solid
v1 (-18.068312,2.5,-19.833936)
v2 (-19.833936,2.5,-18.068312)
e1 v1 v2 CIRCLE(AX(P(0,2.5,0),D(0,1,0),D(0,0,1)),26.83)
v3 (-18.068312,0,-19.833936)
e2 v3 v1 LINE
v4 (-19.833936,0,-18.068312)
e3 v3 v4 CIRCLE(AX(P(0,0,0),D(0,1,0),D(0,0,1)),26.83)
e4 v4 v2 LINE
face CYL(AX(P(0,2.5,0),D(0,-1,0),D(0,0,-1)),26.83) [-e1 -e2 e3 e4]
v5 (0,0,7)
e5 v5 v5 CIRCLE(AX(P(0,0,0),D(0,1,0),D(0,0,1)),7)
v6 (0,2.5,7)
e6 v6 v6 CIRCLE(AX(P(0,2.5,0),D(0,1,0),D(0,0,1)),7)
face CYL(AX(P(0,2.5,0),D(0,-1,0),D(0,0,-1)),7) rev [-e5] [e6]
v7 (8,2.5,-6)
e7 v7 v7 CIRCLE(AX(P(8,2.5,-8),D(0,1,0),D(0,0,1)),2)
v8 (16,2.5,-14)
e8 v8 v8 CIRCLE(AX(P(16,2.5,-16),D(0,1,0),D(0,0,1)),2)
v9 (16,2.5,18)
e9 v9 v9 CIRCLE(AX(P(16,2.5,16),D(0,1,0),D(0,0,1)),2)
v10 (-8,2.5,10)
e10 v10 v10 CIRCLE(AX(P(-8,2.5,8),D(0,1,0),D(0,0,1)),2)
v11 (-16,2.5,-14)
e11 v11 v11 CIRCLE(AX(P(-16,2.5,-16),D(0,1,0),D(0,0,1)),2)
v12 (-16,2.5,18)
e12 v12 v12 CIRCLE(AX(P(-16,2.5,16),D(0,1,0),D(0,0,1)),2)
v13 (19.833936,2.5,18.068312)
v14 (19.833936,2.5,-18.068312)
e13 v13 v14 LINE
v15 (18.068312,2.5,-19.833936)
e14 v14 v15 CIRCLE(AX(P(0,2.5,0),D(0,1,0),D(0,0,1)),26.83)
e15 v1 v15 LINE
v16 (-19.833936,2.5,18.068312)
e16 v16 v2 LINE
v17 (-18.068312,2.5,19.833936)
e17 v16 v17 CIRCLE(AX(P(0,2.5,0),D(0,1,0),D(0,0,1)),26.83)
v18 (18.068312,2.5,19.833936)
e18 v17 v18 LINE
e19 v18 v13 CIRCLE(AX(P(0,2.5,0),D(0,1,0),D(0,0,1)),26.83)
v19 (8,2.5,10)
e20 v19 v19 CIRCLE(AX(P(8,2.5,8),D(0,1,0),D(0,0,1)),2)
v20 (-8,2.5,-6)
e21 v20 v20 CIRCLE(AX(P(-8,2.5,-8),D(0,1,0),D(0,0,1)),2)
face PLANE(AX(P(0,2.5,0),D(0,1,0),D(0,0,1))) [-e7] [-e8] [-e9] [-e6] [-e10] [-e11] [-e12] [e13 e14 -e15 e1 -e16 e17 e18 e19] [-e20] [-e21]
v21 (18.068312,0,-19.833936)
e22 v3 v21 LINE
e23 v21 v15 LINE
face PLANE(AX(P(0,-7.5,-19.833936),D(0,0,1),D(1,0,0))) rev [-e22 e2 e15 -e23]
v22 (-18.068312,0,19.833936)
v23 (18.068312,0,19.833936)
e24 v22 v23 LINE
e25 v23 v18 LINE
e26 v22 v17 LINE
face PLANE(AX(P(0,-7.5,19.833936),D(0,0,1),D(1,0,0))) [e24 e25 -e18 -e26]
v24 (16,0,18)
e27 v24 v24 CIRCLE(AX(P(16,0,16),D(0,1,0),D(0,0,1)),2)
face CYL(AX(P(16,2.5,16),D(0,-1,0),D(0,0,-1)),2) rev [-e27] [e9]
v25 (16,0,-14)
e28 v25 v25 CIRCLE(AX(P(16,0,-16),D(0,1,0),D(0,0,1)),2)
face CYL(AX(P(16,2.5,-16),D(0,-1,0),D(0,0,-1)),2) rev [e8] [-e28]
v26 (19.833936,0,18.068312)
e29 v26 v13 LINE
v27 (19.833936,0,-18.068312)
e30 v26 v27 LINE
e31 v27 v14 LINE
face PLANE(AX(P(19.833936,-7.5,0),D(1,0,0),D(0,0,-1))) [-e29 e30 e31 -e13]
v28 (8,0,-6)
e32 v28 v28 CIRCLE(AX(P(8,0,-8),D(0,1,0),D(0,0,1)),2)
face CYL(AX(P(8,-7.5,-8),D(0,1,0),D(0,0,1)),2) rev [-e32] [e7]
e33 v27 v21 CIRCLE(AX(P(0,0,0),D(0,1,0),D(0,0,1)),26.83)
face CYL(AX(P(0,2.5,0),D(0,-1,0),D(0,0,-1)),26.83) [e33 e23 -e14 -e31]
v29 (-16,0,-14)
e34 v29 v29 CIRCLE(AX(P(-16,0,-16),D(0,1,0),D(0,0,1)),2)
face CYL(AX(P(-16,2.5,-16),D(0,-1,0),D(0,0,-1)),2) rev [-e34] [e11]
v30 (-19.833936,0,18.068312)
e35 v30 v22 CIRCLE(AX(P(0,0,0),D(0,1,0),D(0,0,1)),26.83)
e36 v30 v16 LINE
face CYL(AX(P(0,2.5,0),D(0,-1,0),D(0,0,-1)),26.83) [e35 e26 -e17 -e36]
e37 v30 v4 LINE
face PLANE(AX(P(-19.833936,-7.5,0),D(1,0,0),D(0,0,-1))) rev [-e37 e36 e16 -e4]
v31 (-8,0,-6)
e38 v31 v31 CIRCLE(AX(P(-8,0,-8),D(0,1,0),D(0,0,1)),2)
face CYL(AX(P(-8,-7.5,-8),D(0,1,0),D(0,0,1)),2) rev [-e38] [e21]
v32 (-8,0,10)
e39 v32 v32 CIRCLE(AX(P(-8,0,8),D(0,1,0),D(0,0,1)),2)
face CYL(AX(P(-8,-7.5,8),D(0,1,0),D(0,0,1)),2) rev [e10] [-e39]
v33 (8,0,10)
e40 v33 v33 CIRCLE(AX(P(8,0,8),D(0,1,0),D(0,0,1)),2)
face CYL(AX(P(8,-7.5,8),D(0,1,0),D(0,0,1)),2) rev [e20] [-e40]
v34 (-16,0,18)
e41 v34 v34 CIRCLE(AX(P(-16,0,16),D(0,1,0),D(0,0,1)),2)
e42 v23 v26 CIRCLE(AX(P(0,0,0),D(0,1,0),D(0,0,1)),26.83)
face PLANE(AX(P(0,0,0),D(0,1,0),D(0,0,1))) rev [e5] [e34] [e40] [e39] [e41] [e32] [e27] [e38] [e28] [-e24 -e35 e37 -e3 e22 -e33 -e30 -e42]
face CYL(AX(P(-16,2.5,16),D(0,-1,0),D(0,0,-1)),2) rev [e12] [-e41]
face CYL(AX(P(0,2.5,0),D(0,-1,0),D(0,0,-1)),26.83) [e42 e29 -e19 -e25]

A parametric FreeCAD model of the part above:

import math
import FreeCAD as App
import Part
import Sketcher

doc = App.newDocument("Part")
body = doc.addObject("PartDesign::Body", "Body")

# Sketch on XZ plane
sketch1 = body.newObject("Sketcher::SketchObject", "Sketch")
sketch1.AttachmentSupport = (doc.getObject("XZ_Plane"), [""])
sketch1.MapMode = "FlatFace"
sketch1.addGeometry([
    Part.Circle(App.Vector(0, 0, 0), App.Vector(0, 0, 1), 26.8),  # 0
    Part.Circle(App.Vector(-16, 16, 0), App.Vector(0, 0, 1), 2),  # 1
    Part.Circle(App.Vector(16, 16, 0), App.Vector(0, 0, 1), 2),  # 2
    Part.Circle(App.Vector(0, 0, 0), App.Vector(0, 0, 1), 7),  # 3
    Part.Circle(App.Vector(-16, -16, 0), App.Vector(0, 0, 1), 2),  # 4
    Part.Circle(App.Vector(16, -16, 0), App.Vector(0, 0, 1), 2),  # 5
], False)
sketch1.addConstraint([
    Sketcher.Constraint("Coincident", 0, 3, -1, 1),
    Sketcher.Constraint("Coincident", 3, 3, -1, 1),
    Sketcher.Constraint("Equal", 1, 2),
    Sketcher.Constraint("Equal", 2, 4),
    Sketcher.Constraint("Equal", 4, 5),
    Sketcher.Constraint("Symmetric", 2, 3, 4, 3, -1, 1),
    Sketcher.Constraint("Symmetric", 1, 3, 5, 3, -1, 1),
    Sketcher.Constraint("Symmetric", 1, 3, 2, 3, -2),
    Sketcher.Constraint("Diameter", 1, 4.0),
    Sketcher.Constraint("Diameter", 3, 14.0),
    Sketcher.Constraint("Diameter", 0, 53.66),
    Sketcher.Constraint("DistanceX", 1, 3, -1, 1, 16.0),
    Sketcher.Constraint("DistanceY", -1, 1, 1, 3, 16.0),
])
pad1 = body.newObject("PartDesign::Pad", "Pad")
pad1.Profile = sketch1
pad1.Length = 2.5
pad1.Reversed = True

# Sketch on XZ plane
sketch2 = body.newObject("Sketcher::SketchObject", "Sketch001")
sketch2.AttachmentSupport = (doc.getObject("XZ_Plane"), [""])
sketch2.MapMode = "FlatFace"
sketch2.AttachmentOffset = App.Placement(App.Vector(0, 0, -2.5), App.Rotation())
sketch2.addGeometry([
    Part.ArcOfCircle(Part.Circle(App.Vector(-8, -8, 0), App.Vector(0, 0, 1), 2), math.radians(90), math.radians(360)),  # 0
    Part.ArcOfCircle(Part.Circle(App.Vector(-8, -8, 0), App.Vector(0, 0, 1), 2), math.radians(0), math.radians(90)),  # 1
    Part.ArcOfCircle(Part.Circle(App.Vector(8, -8, 0), App.Vector(0, 0, 1), 2), math.radians(90), math.radians(180)),  # 2
    Part.ArcOfCircle(Part.Circle(App.Vector(8, -8, 0), App.Vector(0, 0, 1), 2), math.radians(0), math.radians(90)),  # 3
    Part.ArcOfCircle(Part.Circle(App.Vector(8, -8, 0), App.Vector(0, 0, 1), 2), math.radians(180), math.radians(360)),  # 4
    Part.ArcOfCircle(Part.Circle(App.Vector(-8, 8, 0), App.Vector(0, 0, 1), 2), math.radians(0), math.radians(270)),  # 5
    Part.ArcOfCircle(Part.Circle(App.Vector(-8, 8, 0), App.Vector(0, 0, 1), 2), math.radians(-45), math.radians(0)),  # 6
    Part.ArcOfCircle(Part.Circle(App.Vector(-8, 8, 0), App.Vector(0, 0, 1), 2), math.radians(-90), math.radians(-45)),  # 7
    Part.ArcOfCircle(Part.Circle(App.Vector(8, 8, 0), App.Vector(0, 0, 1), 2), math.radians(180), math.radians(270)),  # 8
    Part.ArcOfCircle(Part.Circle(App.Vector(8, 8, 0), App.Vector(0, 0, 1), 2), math.radians(0), math.radians(180)),  # 9
    Part.ArcOfCircle(Part.Circle(App.Vector(8, 8, 0), App.Vector(0, 0, 1), 2), math.radians(-90), math.radians(0)),  # 10
], False)
sketch2.addConstraint([
    Sketcher.Constraint("Tangent", 0, 1, 1, 2),
    Sketcher.Constraint("Coincident", 1, 1, 0, 2),
    Sketcher.Constraint("Tangent", 2, 1, 3, 2),
    Sketcher.Constraint("Tangent", 3, 1, 4, 2),
    Sketcher.Constraint("Tangent", 4, 1, 2, 2),
    Sketcher.Constraint("Tangent", 5, 1, 6, 2),
    Sketcher.Constraint("Tangent", 6, 1, 7, 2),
    Sketcher.Constraint("Tangent", 7, 1, 5, 2),
    Sketcher.Constraint("Tangent", 8, 1, 9, 2),
    Sketcher.Constraint("Tangent", 9, 1, 10, 2),
    Sketcher.Constraint("Tangent", 10, 1, 8, 2),
    Sketcher.Constraint("Equal", 1, 2),
    Sketcher.Constraint("Equal", 4, 5),
    Sketcher.Constraint("Equal", 7, 8),
    Sketcher.Constraint("Symmetric", 2, 3, 5, 3, -1, 1),
    Sketcher.Constraint("Symmetric", 0, 3, 8, 3, -1, 1),
    Sketcher.Constraint("Symmetric", 0, 3, 2, 3, -2),
    Sketcher.Constraint("Horizontal", 4, 3, 1, 1),
    Sketcher.Constraint("Horizontal", 1, 1, 3, 1),
    Sketcher.Constraint("Horizontal", 3, 1, 4, 1),
    Sketcher.Constraint("Horizontal", 10, 3, 5, 1),
    Sketcher.Constraint("Horizontal", 5, 1, 8, 1),
    Sketcher.Constraint("Horizontal", 8, 1, 9, 1),
    Sketcher.Constraint("Vertical", 7, 3, 0, 1),
    Sketcher.Constraint("Vertical", 10, 3, 2, 1),
    Sketcher.Constraint("Vertical", 0, 1, 7, 1),
    Sketcher.Constraint("Vertical", 2, 1, 10, 1),
    Sketcher.Constraint("Radius", 0, 2.0),
    Sketcher.Constraint("DistanceX", 0, 3, -1, 1, 8.0),
    Sketcher.Constraint("DistanceY", 0, 3, -1, 1, 8.0),
    Sketcher.Constraint("DistanceX", 6, 1, -1, 1, 6.585786),
])
pocket1 = body.newObject("PartDesign::Pocket", "Pocket")
pocket1.Profile = sketch2
pocket1.Length = 10
pocket1.Reversed = True

# Sketch on XZ plane
sketch3 = body.newObject("Sketcher::SketchObject", "Sketch002")
sketch3.AttachmentSupport = (doc.getObject("XZ_Plane"), [""])
sketch3.MapMode = "FlatFace"
sketch3.AttachmentOffset = App.Placement(App.Vector(0, 0, -2.5), App.Rotation())
sketch3.addGeometry([
    Part.LineSegment(App.Vector(-20, 18, 0), App.Vector(-20, -18, 0)),  # 0
    Part.ArcOfCircle(Part.Circle(App.Vector(0, 0, 0), App.Vector(0, 0, 1), 27), math.radians(138), math.radians(222)),  # 1
    Part.LineSegment(App.Vector(-18, -20, 0), App.Vector(18, -20, 0)),  # 2
    Part.ArcOfCircle(Part.Circle(App.Vector(0, 0, 0), App.Vector(0, 0, 1), 27), math.radians(-132), math.radians(-48)),  # 3
    Part.ArcOfCircle(Part.Circle(App.Vector(0, 0, 0), App.Vector(0, 0, 1), 27), math.radians(-42), math.radians(0)),  # 4
    Part.LineSegment(App.Vector(20, -18, 0), App.Vector(20, 18, 0)),  # 5
    Part.ArcOfCircle(Part.Circle(App.Vector(0, 0, 0), App.Vector(0, 0, 1), 27), math.radians(0), math.radians(42)),  # 6
    Part.ArcOfCircle(Part.Circle(App.Vector(0, 0, 0), App.Vector(0, 0, 1), 27), math.radians(48), math.radians(132)),  # 7
    Part.LineSegment(App.Vector(18, 20, 0), App.Vector(-18, 20, 0)),  # 8
], False)
sketch3.addConstraint([
    Sketcher.Constraint("Coincident", 0, 1, 1, 1),
    Sketcher.Constraint("Coincident", 1, 2, 0, 2),
    Sketcher.Constraint("Coincident", 2, 1, 3, 1),
    Sketcher.Constraint("Coincident", 3, 2, 2, 2),
    Sketcher.Constraint("Coincident", 4, 1, 5, 1),
    Sketcher.Constraint("Coincident", 5, 2, 6, 2),
    Sketcher.Constraint("Tangent", 6, 1, 4, 2),
    Sketcher.Constraint("Coincident", 7, 1, 8, 1),
    Sketcher.Constraint("Coincident", 8, 2, 7, 2),
    Sketcher.Constraint("Vertical", 0),
    Sketcher.Constraint("Horizontal", 2),
    Sketcher.Constraint("Vertical", 5),
    Sketcher.Constraint("Horizontal", 8),
    Sketcher.Constraint("Coincident", 1, 3, -1, 1),
    Sketcher.Constraint("Coincident", 3, 3, -1, 1),
    Sketcher.Constraint("Coincident", 4, 3, -1, 1),
    Sketcher.Constraint("Coincident", 7, 3, -1, 1),
    Sketcher.Constraint("Equal", 1, 3),
    Sketcher.Constraint("Equal", 3, 4),
    Sketcher.Constraint("Equal", 4, 6),
    Sketcher.Constraint("Equal", 6, 7),
    Sketcher.Constraint("PointOnObject", 6, 1, -1),
    Sketcher.Constraint("Horizontal", 1, 2, 4, 1),
    Sketcher.Constraint("Vertical", 3, 2, 7, 1),
    Sketcher.Constraint("Equal", 8, 0),
    Sketcher.Constraint("Radius", 1, 26.83),
    Sketcher.Constraint("DistanceX", 2, 1, 2, 2, 36.136623),
])
pocket2 = body.newObject("PartDesign::Pocket", "Pocket001")
pocket2.Profile = sketch3
pocket2.Length = 10
pocket2.Reversed = True

doc.recompute()
